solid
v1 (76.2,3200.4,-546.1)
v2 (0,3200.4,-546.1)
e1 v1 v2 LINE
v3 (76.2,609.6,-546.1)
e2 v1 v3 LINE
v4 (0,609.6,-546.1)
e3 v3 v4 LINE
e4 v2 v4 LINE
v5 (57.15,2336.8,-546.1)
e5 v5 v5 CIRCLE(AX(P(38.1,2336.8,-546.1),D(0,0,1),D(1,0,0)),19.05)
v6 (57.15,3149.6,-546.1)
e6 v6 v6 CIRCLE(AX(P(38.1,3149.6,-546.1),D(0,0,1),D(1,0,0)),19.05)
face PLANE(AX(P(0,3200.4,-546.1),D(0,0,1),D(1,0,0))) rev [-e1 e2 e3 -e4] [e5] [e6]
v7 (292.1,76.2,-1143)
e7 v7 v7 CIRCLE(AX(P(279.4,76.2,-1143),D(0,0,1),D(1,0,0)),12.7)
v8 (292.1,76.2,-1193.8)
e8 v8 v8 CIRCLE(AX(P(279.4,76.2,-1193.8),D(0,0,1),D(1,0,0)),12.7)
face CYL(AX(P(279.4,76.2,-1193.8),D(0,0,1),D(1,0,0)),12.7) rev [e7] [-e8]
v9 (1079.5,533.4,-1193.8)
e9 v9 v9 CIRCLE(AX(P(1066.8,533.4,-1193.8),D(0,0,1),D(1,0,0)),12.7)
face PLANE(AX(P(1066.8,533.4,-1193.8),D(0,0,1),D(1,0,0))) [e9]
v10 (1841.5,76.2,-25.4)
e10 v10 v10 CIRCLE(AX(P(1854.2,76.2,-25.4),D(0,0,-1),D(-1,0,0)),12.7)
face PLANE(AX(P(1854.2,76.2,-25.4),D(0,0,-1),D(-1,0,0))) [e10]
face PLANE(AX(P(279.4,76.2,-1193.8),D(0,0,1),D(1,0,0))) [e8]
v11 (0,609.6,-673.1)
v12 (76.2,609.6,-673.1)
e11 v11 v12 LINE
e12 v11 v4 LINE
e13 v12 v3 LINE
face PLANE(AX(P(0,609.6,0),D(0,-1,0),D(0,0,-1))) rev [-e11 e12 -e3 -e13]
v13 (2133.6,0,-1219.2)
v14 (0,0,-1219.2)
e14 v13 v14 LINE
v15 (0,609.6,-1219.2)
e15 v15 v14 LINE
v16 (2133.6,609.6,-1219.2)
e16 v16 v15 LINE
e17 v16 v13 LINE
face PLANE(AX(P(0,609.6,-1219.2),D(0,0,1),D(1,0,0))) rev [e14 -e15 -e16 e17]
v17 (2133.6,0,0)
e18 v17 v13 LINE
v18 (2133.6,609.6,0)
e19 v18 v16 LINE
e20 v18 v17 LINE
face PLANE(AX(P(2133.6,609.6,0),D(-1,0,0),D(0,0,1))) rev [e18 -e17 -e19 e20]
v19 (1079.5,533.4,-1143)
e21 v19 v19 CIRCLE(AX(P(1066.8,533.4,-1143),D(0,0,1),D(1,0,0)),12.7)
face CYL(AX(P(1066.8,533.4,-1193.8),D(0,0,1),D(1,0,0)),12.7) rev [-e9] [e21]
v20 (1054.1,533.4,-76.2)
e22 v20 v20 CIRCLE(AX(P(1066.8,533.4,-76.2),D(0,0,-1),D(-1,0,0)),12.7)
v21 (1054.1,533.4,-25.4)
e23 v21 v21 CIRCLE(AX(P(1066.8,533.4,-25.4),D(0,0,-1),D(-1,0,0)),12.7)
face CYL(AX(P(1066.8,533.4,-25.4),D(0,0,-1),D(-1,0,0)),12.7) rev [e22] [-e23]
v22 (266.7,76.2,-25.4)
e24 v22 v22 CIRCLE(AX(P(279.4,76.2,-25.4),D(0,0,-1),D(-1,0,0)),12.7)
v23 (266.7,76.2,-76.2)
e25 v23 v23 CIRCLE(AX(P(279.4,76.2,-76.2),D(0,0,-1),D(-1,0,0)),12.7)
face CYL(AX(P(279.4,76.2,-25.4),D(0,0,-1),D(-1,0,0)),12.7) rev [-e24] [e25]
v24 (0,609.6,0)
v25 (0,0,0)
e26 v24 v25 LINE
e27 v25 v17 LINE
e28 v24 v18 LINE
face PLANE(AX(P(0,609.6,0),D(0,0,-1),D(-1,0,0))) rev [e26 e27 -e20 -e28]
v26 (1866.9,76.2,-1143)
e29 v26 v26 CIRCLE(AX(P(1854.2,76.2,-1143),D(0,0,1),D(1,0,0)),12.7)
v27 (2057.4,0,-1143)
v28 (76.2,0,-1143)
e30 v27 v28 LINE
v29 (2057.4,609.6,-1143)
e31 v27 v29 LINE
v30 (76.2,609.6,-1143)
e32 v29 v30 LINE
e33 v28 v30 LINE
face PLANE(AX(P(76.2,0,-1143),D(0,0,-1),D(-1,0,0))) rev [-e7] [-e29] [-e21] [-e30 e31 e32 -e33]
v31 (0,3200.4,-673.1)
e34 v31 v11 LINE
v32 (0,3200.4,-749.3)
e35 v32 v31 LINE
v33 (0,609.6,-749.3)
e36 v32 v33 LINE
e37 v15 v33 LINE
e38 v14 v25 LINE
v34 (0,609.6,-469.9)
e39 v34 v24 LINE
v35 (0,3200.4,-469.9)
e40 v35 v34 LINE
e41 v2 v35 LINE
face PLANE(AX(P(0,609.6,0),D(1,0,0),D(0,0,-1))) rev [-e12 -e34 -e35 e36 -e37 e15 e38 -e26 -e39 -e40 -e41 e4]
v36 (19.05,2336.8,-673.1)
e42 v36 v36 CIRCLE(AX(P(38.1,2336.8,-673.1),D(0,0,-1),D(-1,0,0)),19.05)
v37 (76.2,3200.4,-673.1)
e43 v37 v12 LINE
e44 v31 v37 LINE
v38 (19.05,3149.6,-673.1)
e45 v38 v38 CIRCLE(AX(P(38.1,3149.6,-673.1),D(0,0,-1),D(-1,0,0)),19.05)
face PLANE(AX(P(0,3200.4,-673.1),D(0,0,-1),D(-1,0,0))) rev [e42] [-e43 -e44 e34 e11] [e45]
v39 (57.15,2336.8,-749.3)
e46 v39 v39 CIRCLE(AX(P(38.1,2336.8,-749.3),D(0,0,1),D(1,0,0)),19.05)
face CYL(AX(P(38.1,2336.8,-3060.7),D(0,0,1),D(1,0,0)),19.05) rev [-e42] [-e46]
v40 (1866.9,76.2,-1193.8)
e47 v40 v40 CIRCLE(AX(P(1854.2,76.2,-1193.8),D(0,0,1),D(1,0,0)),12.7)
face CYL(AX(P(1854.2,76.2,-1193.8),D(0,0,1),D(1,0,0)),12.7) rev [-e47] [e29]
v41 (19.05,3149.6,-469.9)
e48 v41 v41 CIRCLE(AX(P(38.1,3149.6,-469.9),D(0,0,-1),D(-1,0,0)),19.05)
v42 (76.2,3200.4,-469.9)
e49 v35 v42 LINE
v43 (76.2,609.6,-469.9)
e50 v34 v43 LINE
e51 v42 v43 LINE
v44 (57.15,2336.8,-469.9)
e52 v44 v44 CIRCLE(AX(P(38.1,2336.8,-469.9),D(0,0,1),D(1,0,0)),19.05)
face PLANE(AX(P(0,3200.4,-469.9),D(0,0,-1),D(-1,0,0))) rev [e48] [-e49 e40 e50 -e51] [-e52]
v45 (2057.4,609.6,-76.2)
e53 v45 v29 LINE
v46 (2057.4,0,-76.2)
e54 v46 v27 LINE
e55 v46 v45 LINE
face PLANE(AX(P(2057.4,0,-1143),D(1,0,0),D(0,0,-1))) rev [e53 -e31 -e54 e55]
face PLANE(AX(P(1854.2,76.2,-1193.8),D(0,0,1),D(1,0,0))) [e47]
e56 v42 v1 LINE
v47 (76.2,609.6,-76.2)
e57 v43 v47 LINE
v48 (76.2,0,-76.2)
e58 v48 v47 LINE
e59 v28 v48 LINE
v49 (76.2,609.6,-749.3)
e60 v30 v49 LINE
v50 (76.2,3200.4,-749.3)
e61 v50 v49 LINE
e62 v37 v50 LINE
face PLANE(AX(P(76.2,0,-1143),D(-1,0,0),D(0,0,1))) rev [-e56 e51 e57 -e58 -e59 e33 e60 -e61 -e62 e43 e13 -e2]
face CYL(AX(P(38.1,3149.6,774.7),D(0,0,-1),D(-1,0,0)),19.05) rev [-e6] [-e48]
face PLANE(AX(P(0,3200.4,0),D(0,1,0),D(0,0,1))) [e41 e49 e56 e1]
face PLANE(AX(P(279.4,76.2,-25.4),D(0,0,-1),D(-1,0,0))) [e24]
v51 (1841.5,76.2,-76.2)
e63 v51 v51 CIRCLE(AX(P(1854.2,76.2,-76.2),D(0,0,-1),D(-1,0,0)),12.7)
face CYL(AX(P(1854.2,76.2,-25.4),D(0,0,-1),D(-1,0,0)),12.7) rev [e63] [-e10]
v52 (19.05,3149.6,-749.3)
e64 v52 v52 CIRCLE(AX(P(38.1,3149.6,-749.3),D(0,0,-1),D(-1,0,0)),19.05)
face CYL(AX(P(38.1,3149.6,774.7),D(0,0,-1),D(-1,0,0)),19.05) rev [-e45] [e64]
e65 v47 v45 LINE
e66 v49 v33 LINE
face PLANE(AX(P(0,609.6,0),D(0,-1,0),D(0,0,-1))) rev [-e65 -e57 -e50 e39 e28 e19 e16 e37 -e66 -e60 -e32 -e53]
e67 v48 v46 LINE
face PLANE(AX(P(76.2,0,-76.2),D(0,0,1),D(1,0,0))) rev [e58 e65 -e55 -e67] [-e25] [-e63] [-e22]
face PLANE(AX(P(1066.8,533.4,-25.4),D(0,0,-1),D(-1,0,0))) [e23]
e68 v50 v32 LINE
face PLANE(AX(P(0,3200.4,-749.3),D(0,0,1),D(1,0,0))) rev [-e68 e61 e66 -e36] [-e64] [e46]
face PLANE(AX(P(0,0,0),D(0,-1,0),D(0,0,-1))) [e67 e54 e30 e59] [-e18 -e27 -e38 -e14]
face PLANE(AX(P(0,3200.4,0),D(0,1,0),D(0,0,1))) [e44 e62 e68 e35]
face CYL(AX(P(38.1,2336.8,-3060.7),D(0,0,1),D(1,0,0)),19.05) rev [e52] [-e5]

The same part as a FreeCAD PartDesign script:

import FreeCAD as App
import Part
import Sketcher

V = App.Vector
Q = App.Units.Quantity

doc = App.newDocument("Part")
body = doc.addObject("PartDesign::Body", "Body")

# Sketch on XZ plane
sketch1 = body.newObject("Sketcher::SketchObject", "Sketch")
sketch1.AttachmentSupport = (doc.getObject("XZ_Plane"), [""])
sketch1.MapMode = "FlatFace"
sketch1.addGeometry([
    Part.LineSegment(V(0, -1219, 0), V(0, 0, 0)),
    Part.LineSegment(V(0, 0, 0), V(2134, 0, 0)),
    Part.LineSegment(V(2134, 0, 0), V(2134, -1219, 0)),
    Part.LineSegment(V(2134, -1219, 0), V(0, -1219, 0)),
], False)
sketch1.addConstraint([
    Sketcher.Constraint("Coincident", 0, 2, 1, 1),
    Sketcher.Constraint("Coincident", 1, 2, 2, 1),
    Sketcher.Constraint("Coincident", 2, 2, 3, 1),
    Sketcher.Constraint("Coincident", 3, 2, 0, 1),
    Sketcher.Constraint("Vertical", 0),
    Sketcher.Constraint("Horizontal", 1),
    Sketcher.Constraint("Vertical", 2),
    Sketcher.Constraint("Horizontal", 3),
    Sketcher.Constraint("Coincident", 0, 2, -1, 1),
    Sketcher.Constraint("DistanceX", 1, 1, 1, 2, Q("84 in")),
    Sketcher.Constraint("DistanceY", 0, 1, 0, 2, Q("48 in")),
])
pad1 = body.newObject("PartDesign::Pad", "Pad")
pad1.Profile = sketch1
pad1.Length = Q("24 in")
pad1.Reversed = True

# Sketch on XZ plane
sketch2 = body.newObject("Sketcher::SketchObject", "Sketch001")
sketch2.AttachmentSupport = (doc.getObject("XZ_Plane"), [""])
sketch2.MapMode = "FlatFace"
sketch2.AttachmentOffset = App.Placement(V(0, 0, -24 * 25.4), App.Rotation())
sketch2.addGeometry([
    Part.LineSegment(V(76, -1143, 0), V(76, -76, 0)),
    Part.LineSegment(V(76, -76, 0), V(2057, -76, 0)),
    Part.LineSegment(V(2057, -76, 0), V(2057, -1143, 0)),
    Part.LineSegment(V(2057, -1143, 0), V(76, -1143, 0)),
], False)
sketch2.addConstraint([
    Sketcher.Constraint("Coincident", 0, 2, 1, 1),
    Sketcher.Constraint("Coincident", 1, 2, 2, 1),
    Sketcher.Constraint("Coincident", 2, 2, 3, 1),
    Sketcher.Constraint("Coincident", 3, 2, 0, 1),
    Sketcher.Constraint("Vertical", 0),
    Sketcher.Constraint("Horizontal", 1),
    Sketcher.Constraint("Vertical", 2),
    Sketcher.Constraint("Horizontal", 3),
    Sketcher.Constraint("DistanceX", 1, 1, 1, 2, Q("78 in")),
    Sketcher.Constraint("DistanceY", 0, 1, 0, 2, Q("42 in")),
    Sketcher.Constraint("DistanceX", -1, 1, 0, 2, Q("3 in")),
    Sketcher.Constraint("DistanceY", 0, 2, -1, 1, Q("3 in")),
])
pocket1 = body.newObject("PartDesign::Pocket", "Pocket")
pocket1.Profile = sketch2
pocket1.Length = Q("24 in")
pocket1.Reversed = True

# Sketch on XY plane
sketch3 = body.newObject("Sketcher::SketchObject", "Sketch002")
sketch3.AttachmentSupport = (doc.getObject("XY_Plane"), [""])
sketch3.MapMode = "FlatFace"
sketch3.AttachmentOffset = App.Placement(V(0, 0, -3 * 25.4), App.Rotation())
sketch3.addGeometry([
    Part.Circle(V(279, 76, 0), V(0, 0, 1), 13),
    Part.Circle(V(1854, 76, 0), V(0, 0, 1), 13),
], False)
sketch3.addConstraint([
    Sketcher.Constraint("Equal", 0, 1),
    Sketcher.Constraint("Horizontal", 0, 3, 1, 3),
    Sketcher.Constraint("Diameter", 0, Q("1 in")),
    Sketcher.Constraint("DistanceX", -1, 1, 0, 3, Q("11 in")),
    Sketcher.Constraint("DistanceY", -1, 1, 0, 3, Q("3 in")),
    Sketcher.Constraint("DistanceX", -1, 1, 1, 3, Q("73 in")),
])
pocket2 = body.newObject("PartDesign::Pocket", "Pocket001")
pocket2.Profile = sketch3
pocket2.Length = Q("2 in")
pocket2.Reversed = True

# Sketch on XY plane
sketch4 = body.newObject("Sketcher::SketchObject", "Sketch003")
sketch4.AttachmentSupport = (doc.getObject("XY_Plane"), [""])
sketch4.MapMode = "FlatFace"
sketch4.AttachmentOffset = App.Placement(V(0, 0, -45 * 25.4), App.Rotation())
sketch4.addGeometry([
    Part.Circle(V(1854, 76, 0), V(0, 0, 1), 13),
    Part.Circle(V(279, 76, 0), V(0, 0, 1), 13),
], False)
sketch4.addConstraint([
    Sketcher.Constraint("Equal", 0, 1),
    Sketcher.Constraint("Horizontal", 0, 3, 1, 3),
    Sketcher.Constraint("Diameter", 0, Q("1 in")),
    Sketcher.Constraint("DistanceX", -1, 1, 0, 3, Q("73 in")),
    Sketcher.Constraint("DistanceY", -1, 1, 0, 3, Q("3 in")),
    Sketcher.Constraint("DistanceX", -1, 1, 1, 3, Q("11 in")),
])
pocket3 = body.newObject("PartDesign::Pocket", "Pocket002")
pocket3.Profile = sketch4
pocket3.Length = Q("2 in")

# Sketch on XY plane
sketch5 = body.newObject("Sketcher::SketchObject", "Sketch004")
sketch5.AttachmentSupport = (doc.getObject("XY_Plane"), [""])
sketch5.MapMode = "FlatFace"
sketch5.AttachmentOffset = App.Placement(V(0, 0, -45 * 25.4), App.Rotation())
sketch5.addGeometry(Part.Circle(V(1067, 508, 0), V(0, 0, 1), 13), False)
sketch5.addConstraint([
    Sketcher.Constraint("Diameter", 0, Q("1 in")),
    Sketcher.Constraint("DistanceX", -1, 1, 0, 3, Q("42 in")),
    Sketcher.Constraint("DistanceY", -1, 1, 0, 3, Q("20 in")),
])
pad2 = body.newObject("PartDesign::Pad", "Pad001")
pad2.Profile = sketch5
pad2.Length = Q("2 in")
pad2.Reversed = True

# Sketch on XY plane
sketch6 = body.newObject("Sketcher::SketchObject", "Sketch005")
sketch6.AttachmentSupport = (doc.getObject("XY_Plane"), [""])
sketch6.MapMode = "FlatFace"
sketch6.AttachmentOffset = App.Placement(V(0, 0, -3 * 25.4), App.Rotation())
sketch6.addGeometry(Part.Circle(V(1067, 533, 0), V(0, 0, 1), 13), False)
sketch6.addConstraint([
    Sketcher.Constraint("Diameter", 0, Q("1 in")),
    Sketcher.Constraint("DistanceX", -1, 1, 0, 3, Q("42 in")),
    Sketcher.Constraint("DistanceY", -1, 1, 0, 3, Q("21 in")),
])
pocket4 = body.newObject("PartDesign::Pocket", "Pocket003")
pocket4.Profile = sketch6
pocket4.Length = Q("2 in")
pocket4.Reversed = True

# Sketch on XY plane
sketch7 = body.newObject("Sketcher::SketchObject", "Sketch006")
sketch7.AttachmentSupport = (doc.getObject("XY_Plane"), [""])
sketch7.MapMode = "FlatFace"
sketch7.AttachmentOffset = App.Placement(V(0, 0, -45 * 25.4), App.Rotation())
sketch7.addGeometry(Part.Circle(V(1067, 533, 0), V(0, 0, 1), 13), False)
sketch7.addConstraint([
    Sketcher.Constraint("Diameter", 0, Q("1 in")),
    Sketcher.Constraint("DistanceX", -1, 1, 0, 3, Q("42 in")),
    Sketcher.Constraint("DistanceY", -1, 1, 0, 3, Q("21 in")),
])
pocket5 = body.newObject("PartDesign::Pocket", "Pocket004")
pocket5.Profile = sketch7
pocket5.Length = Q("2 in")

# Sketch on XZ plane
sketch8 = body.newObject("Sketcher::SketchObject", "Sketch007")
sketch8.AttachmentSupport = (doc.getObject("XZ_Plane"), [""])
sketch8.MapMode = "FlatFace"
sketch8.AttachmentOffset = App.Placement(V(0, 0, -24 * 25.4), App.Rotation())
sketch8.addGeometry([
    Part.LineSegment(V(0, -749, 0), V(0, -673, 0)),  # 0
    Part.LineSegment(V(0, -673, 0), V(76, -673, 0)),  # 1
    Part.LineSegment(V(76, -673, 0), V(76, -749, 0)),  # 2
    Part.LineSegment(V(76, -749, 0), V(0, -749, 0)),  # 3
    Part.LineSegment(V(0, -546, 0), V(0, -470, 0)),  # 4
    Part.LineSegment(V(0, -470, 0), V(76, -470, 0)),  # 5
    Part.LineSegment(V(76, -470, 0), V(76, -546, 0)),  # 6
    Part.LineSegment(V(76, -546, 0), V(0, -546, 0)),  # 7
], False)
sketch8.addConstraint([
    Sketcher.Constraint("Coincident", 0, 2, 1, 1),
    Sketcher.Constraint("Coincident", 1, 2, 2, 1),
    Sketcher.Constraint("Coincident", 2, 2, 3, 1),
    Sketcher.Constraint("Coincident", 3, 2, 0, 1),
    Sketcher.Constraint("Coincident", 4, 2, 5, 1),
    Sketcher.Constraint("Coincident", 5, 2, 6, 1),
    Sketcher.Constraint("Coincident", 6, 2, 7, 1),
    Sketcher.Constraint("Coincident", 7, 2, 4, 1),
    Sketcher.Constraint("Vertical", 0),
    Sketcher.Constraint("Horizontal", 1),
    Sketcher.Constraint("Vertical", 2),
    Sketcher.Constraint("Horizontal", 3),
    Sketcher.Constraint("Vertical", 4),
    Sketcher.Constraint("Horizontal", 5),
    Sketcher.Constraint("Vertical", 6),
    Sketcher.Constraint("Horizontal", 7),
    Sketcher.Constraint("PointOnObject", 0, 2, -2),
    Sketcher.Constraint("PointOnObject", 4, 2, -2),
    Sketcher.Constraint("Vertical", 2, 2, 5, 2),
    Sketcher.Constraint("Equal", 7, 0),
    Sketcher.Constraint("Equal", 2, 4),
    Sketcher.Constraint("DistanceX", 1, 1, 1, 2, Q("3 in")),
    Sketcher.Constraint("DistanceY", 0, 2, 4, 2, Q("8 in")),
    Sketcher.Constraint("DistanceY", 0, 2, -1, 1, Q("26.5 in")),
])
pad3 = body.newObject("PartDesign::Pad", "Pad002")
pad3.Profile = sketch8
pad3.Length = Q("102 in")
pad3.Reversed = True

# Sketch on XY plane
sketch9 = body.newObject("Sketcher::SketchObject", "Sketch008")
sketch9.AttachmentSupport = (doc.getObject("XY_Plane"), [""])
sketch9.MapMode = "FlatFace"
sketch9.AttachmentOffset = App.Placement(V(0, 0, -18.5 * 25.4), App.Rotation())
sketch9.addGeometry(Part.Circle(V(38, 2337, 0), V(0, 0, 1), 19), False)
sketch9.addConstraint([
    Sketcher.Constraint("Diameter", 0, Q("1.5 in")),
    Sketcher.Constraint("DistanceY", -1, 1, 0, 3, Q("92 in")),
    Sketcher.Constraint("DistanceX", -1, 1, 0, 3, Q("1.5 in")),
])
pocket6 = body.newObject("PartDesign::Pocket", "Pocket005")
pocket6.Profile = sketch9
pocket6.Length = Q("102 in")

# Sketch on XY plane
sketch10 = body.newObject("Sketcher::SketchObject", "Sketch009")
sketch10.AttachmentSupport = (doc.getObject("XY_Plane"), [""])
sketch10.MapMode = "FlatFace"
sketch10.AttachmentOffset = App.Placement(V(0, 0, -29.5 * 25.4), App.Rotation())
sketch10.addGeometry(Part.Circle(V(38, 3150, 0), V(0, 0, 1), 19), False)
sketch10.addConstraint([
    Sketcher.Constraint("Diameter", 0, Q("1.5 in")),
    Sketcher.Constraint("DistanceY", -1, 1, 0, 3, Q("124 in")),
    Sketcher.Constraint("DistanceX", -1, 1, 0, 3, Q("1.5 in")),
])
pocket7 = body.newObject("PartDesign::Pocket", "Pocket006")
pocket7.Profile = sketch10
pocket7.Length = Q("60 in")
pocket7.Reversed = True

doc.recompute()
